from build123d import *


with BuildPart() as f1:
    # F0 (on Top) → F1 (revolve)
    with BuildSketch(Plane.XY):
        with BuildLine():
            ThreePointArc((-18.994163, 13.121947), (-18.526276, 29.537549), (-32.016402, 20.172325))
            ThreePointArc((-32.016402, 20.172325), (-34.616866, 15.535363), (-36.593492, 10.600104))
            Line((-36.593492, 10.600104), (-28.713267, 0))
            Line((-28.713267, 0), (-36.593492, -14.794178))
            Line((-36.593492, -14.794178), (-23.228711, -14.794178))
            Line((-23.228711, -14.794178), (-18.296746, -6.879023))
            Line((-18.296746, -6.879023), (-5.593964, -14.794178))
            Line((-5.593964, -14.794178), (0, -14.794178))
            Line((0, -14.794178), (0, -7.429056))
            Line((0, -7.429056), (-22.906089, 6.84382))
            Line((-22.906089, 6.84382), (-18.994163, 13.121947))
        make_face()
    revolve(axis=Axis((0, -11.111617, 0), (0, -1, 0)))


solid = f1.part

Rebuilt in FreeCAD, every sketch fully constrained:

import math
import FreeCAD as App
import Part
import Sketcher

V = App.Vector

doc = App.newDocument("Part")
body = doc.addObject("PartDesign::Body", "Body")

# Sketch on XY plane
sketch1 = body.newObject("Sketcher::SketchObject", "Sketch")
sketch1.AttachmentSupport = (doc.getObject("XY_Plane"), [""])
sketch1.MapMode = "FlatFace"
sketch1.addGeometry([
    Part.ArcOfCircle(Part.Circle(V(-23, 21, 0), V(0, 0, 1), 9), math.radians(-65), math.radians(188)),  # 0
    Part.ArcOfCircle(Part.Circle(V(2, -2, 0), V(0, 0, 1), 41), math.radians(146.99), math.radians(161.9)),  # 1
    Part.LineSegment(V(-37, 11, 0), V(-29, 0, 0)),  # 2
    Part.LineSegment(V(-29, 0, 0), V(-37, -15, 0)),  # 3
    Part.LineSegment(V(-37, -15, 0), V(-23, -15, 0)),  # 4
    Part.LineSegment(V(-23, -15, 0), V(-18, -7, 0)),  # 5
    Part.LineSegment(V(-18, -7, 0), V(-6, -15, 0)),  # 6
    Part.LineSegment(V(-6, -15, 0), V(0, -15, 0)),  # 7
    Part.LineSegment(V(0, -15, 0), V(0, -7, 0)),  # 8
    Part.LineSegment(V(0, -7, 0), V(-23, 7, 0)),  # 9
    Part.LineSegment(V(-23, 7, 0), V(-19, 13, 0)),  # 10
], False)
sketch1.addConstraint([
    Sketcher.Constraint("Coincident", 0, 2, 1, 1),
    Sketcher.Constraint("Coincident", 1, 2, 2, 1),
    Sketcher.Constraint("Coincident", 2, 2, 3, 1),
    Sketcher.Constraint("Coincident", 3, 2, 4, 1),
    Sketcher.Constraint("Coincident", 4, 2, 5, 1),
    Sketcher.Constraint("Coincident", 5, 2, 6, 1),
    Sketcher.Constraint("Coincident", 6, 2, 7, 1),
    Sketcher.Constraint("Coincident", 7, 2, 8, 1),
    Sketcher.Constraint("Coincident", 8, 2, 9, 1),
    Sketcher.Constraint("Coincident", 9, 2, 10, 1),
    Sketcher.Constraint("Coincident", 10, 2, 0, 1),
    Sketcher.Constraint("Horizontal", 4),
    Sketcher.Constraint("Horizontal", 7),
    Sketcher.Constraint("Vertical", 8),
    Sketcher.Constraint("PointOnObject", 2, 2, -1),
    Sketcher.Constraint("PointOnObject", 7, 2, -2),
    Sketcher.Constraint("Perpendicular", 5, 6),
    Sketcher.Constraint("Parallel", 6, 9),
    Sketcher.Constraint("Perpendicular", 9, 10),
    Sketcher.Constraint("Horizontal", 4, 2, 6, 2),
    Sketcher.Constraint("Vertical", 1, 2, 3, 2),
    Sketcher.Constraint("Vertical", 0, 3, 9, 2),
    Sketcher.Constraint("Radius", 0, 9.199181),
    Sketcher.Constraint("Radius", 1, 40.873958),
    Sketcher.Constraint("DistanceX", 4, 1, 4, 2, 13.364781),
    Sketcher.Constraint("DistanceX", 0, 2, -1, 1, 32.016402),
    Sketcher.Constraint("Distance", 3, 16.76203),
    Sketcher.Constraint("Distance", 9, 26.988959),
    Sketcher.Constraint("DistanceX", 7, 1, 7, 2, 5.593964),
    Sketcher.Constraint("DistanceY", 8, 1, 8, 2, 7.365122),
    Sketcher.Constraint("DistanceX", 0, 3, -1, 1, 22.906089),
    Sketcher.Constraint("DistanceY", 1, 3, -1, 1, 2.097019),
    Sketcher.Constraint("DistanceX", 1, 2, -1, 1, 36.593492),
    Sketcher.Constraint("DistanceY", -1, 1, 9, 2, 6.84382),
    Sketcher.Constraint("DistanceY", 1, 2, 0, 2, 9.572221),
])
revolution = body.newObject("PartDesign::Revolution", "Revolution")
revolution.Profile = sketch1
revolution.ReferenceAxis = (sketch1, ["V_Axis"])
revolution.Angle = 360

doc.recompute()
